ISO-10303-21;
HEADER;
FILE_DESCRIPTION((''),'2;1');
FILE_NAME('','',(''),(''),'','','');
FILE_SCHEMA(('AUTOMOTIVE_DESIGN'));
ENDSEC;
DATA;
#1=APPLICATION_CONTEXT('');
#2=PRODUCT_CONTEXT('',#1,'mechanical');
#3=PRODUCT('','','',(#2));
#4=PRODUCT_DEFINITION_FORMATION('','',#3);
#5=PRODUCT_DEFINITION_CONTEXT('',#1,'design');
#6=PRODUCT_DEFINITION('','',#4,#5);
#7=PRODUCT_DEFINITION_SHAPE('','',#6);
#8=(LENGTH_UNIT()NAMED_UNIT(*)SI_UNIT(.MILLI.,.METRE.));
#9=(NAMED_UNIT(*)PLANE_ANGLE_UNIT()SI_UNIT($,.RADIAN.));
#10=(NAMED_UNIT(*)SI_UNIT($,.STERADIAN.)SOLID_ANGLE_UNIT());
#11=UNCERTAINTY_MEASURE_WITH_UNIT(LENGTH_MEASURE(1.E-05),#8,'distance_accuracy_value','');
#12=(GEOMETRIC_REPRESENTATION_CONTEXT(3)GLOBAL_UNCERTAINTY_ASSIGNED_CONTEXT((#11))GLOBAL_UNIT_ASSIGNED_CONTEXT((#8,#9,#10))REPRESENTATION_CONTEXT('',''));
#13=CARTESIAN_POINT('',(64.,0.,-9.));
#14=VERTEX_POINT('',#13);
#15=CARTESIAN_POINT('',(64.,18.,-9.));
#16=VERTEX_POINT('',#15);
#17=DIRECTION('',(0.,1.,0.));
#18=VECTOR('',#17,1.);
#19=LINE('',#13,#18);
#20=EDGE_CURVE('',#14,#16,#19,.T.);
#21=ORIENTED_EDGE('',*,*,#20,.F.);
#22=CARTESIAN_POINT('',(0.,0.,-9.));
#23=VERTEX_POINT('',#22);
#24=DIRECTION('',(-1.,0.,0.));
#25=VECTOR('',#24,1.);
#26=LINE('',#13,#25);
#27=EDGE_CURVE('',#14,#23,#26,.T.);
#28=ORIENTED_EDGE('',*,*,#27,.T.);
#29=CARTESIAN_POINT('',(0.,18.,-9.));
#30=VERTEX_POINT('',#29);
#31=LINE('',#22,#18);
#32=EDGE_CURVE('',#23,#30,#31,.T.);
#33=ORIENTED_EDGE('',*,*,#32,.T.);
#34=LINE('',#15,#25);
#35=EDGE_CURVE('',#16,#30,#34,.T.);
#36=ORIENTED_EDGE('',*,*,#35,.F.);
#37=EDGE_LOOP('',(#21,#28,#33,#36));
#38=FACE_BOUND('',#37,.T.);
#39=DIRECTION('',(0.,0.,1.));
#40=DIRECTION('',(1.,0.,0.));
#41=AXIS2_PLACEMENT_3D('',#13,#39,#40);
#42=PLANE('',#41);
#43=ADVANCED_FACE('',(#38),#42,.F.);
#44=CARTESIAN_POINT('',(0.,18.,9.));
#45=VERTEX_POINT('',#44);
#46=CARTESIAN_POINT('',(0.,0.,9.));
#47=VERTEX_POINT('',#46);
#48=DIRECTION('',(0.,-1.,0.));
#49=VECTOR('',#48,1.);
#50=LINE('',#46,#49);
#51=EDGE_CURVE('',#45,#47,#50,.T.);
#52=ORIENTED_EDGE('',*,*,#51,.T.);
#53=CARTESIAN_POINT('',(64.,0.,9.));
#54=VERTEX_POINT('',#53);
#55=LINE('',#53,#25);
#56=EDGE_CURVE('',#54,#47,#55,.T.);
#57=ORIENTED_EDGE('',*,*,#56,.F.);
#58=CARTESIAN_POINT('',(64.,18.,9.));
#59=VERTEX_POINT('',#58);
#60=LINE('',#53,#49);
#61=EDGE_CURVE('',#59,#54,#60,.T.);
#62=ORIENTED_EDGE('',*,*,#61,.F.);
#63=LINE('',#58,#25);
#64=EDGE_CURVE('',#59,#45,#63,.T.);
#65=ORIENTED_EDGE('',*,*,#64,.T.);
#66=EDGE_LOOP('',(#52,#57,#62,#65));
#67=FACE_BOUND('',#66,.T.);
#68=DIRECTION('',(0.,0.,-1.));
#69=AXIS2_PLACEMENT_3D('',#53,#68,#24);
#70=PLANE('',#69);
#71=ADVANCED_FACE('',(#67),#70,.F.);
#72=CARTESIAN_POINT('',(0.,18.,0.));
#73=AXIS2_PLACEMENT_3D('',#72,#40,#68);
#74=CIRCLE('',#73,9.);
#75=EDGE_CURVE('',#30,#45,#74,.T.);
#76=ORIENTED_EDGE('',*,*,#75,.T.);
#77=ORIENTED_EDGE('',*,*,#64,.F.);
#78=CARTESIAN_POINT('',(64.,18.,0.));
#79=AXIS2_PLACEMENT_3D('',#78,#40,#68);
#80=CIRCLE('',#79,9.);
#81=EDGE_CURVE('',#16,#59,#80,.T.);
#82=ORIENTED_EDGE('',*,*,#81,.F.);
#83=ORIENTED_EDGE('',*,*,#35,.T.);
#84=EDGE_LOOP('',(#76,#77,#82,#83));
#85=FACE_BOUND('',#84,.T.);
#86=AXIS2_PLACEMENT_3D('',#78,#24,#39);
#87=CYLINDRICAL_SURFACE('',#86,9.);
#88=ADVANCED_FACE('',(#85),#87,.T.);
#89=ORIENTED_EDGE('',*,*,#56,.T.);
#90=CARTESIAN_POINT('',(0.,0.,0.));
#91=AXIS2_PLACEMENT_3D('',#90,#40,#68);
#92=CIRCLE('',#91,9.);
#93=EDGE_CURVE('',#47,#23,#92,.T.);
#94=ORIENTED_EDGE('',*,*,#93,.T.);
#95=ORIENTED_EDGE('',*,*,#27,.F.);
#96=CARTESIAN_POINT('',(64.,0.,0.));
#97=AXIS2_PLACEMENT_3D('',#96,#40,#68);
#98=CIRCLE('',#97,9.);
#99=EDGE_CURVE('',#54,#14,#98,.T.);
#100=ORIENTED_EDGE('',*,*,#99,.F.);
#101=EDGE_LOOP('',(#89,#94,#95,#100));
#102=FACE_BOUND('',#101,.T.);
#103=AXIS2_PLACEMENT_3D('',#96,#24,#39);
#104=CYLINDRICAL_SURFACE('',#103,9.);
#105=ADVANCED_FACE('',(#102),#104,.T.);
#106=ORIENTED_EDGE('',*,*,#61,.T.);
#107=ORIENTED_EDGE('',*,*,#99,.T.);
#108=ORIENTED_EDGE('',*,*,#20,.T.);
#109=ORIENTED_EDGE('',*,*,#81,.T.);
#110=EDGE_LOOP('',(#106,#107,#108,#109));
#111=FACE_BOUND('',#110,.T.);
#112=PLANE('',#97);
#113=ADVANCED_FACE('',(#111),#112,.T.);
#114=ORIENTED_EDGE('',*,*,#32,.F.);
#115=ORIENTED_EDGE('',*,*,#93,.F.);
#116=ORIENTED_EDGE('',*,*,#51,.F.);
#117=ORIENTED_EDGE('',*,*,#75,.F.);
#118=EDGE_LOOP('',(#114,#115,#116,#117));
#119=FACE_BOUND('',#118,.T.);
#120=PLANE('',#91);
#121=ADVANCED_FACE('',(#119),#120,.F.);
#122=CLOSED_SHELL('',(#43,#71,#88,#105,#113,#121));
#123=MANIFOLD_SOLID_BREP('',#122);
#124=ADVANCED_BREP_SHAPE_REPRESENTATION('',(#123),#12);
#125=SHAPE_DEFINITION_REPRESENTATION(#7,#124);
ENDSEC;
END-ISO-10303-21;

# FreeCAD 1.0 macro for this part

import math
import FreeCAD as App
import Part
import Sketcher

V = App.Vector

doc = App.newDocument("Part")
body = doc.addObject("PartDesign::Body", "Body")

# Sketch on YZ plane
sketch1 = body.newObject("Sketcher::SketchObject", "Sketch")
sketch1.AttachmentSupport = (doc.getObject("YZ_Plane"), [""])
sketch1.MapMode = "FlatFace"
sketch1.addGeometry(Part.LineSegment(V(18, 9, 0), V(0, 9, 0)), False)
sketch1.addGeometry(Part.ArcOfCircle(Part.Circle(V(0, 0, 0), V(0, 0, 1), 9), math.radians(90), math.radians(270)), False)
sketch1.addGeometry(Part.LineSegment(V(0, -9, 0), V(18, -9, 0)), False)
sketch1.addGeometry(Part.ArcOfCircle(Part.Circle(V(18, 0, 0), V(0, 0, 1), 9), math.radians(-90), math.radians(90)), False)
sketch1.addConstraint(Sketcher.Constraint("Tangent", 0, 2, 1, 1))
sketch1.addConstraint(Sketcher.Constraint("Tangent", 1, 2, 2, 1))
sketch1.addConstraint(Sketcher.Constraint("Tangent", 2, 2, 3, 1))
sketch1.addConstraint(Sketcher.Constraint("Tangent", 3, 2, 0, 1))
sketch1.addConstraint(Sketcher.Constraint("Horizontal", 0))
sketch1.addConstraint(Sketcher.Constraint("Horizontal", 2))
sketch1.addConstraint(Sketcher.Constraint("Coincident", 1, 3, -1, 1))
sketch1.addConstraint(Sketcher.Constraint("Radius", 1, 9.0))
sketch1.addConstraint(Sketcher.Constraint("DistanceX", 0, 2, 0, 1, 18.0))
pad1 = body.newObject("PartDesign::Pad", "Pad")
pad1.Profile = sketch1
pad1.Length = 64

doc.recompute()
